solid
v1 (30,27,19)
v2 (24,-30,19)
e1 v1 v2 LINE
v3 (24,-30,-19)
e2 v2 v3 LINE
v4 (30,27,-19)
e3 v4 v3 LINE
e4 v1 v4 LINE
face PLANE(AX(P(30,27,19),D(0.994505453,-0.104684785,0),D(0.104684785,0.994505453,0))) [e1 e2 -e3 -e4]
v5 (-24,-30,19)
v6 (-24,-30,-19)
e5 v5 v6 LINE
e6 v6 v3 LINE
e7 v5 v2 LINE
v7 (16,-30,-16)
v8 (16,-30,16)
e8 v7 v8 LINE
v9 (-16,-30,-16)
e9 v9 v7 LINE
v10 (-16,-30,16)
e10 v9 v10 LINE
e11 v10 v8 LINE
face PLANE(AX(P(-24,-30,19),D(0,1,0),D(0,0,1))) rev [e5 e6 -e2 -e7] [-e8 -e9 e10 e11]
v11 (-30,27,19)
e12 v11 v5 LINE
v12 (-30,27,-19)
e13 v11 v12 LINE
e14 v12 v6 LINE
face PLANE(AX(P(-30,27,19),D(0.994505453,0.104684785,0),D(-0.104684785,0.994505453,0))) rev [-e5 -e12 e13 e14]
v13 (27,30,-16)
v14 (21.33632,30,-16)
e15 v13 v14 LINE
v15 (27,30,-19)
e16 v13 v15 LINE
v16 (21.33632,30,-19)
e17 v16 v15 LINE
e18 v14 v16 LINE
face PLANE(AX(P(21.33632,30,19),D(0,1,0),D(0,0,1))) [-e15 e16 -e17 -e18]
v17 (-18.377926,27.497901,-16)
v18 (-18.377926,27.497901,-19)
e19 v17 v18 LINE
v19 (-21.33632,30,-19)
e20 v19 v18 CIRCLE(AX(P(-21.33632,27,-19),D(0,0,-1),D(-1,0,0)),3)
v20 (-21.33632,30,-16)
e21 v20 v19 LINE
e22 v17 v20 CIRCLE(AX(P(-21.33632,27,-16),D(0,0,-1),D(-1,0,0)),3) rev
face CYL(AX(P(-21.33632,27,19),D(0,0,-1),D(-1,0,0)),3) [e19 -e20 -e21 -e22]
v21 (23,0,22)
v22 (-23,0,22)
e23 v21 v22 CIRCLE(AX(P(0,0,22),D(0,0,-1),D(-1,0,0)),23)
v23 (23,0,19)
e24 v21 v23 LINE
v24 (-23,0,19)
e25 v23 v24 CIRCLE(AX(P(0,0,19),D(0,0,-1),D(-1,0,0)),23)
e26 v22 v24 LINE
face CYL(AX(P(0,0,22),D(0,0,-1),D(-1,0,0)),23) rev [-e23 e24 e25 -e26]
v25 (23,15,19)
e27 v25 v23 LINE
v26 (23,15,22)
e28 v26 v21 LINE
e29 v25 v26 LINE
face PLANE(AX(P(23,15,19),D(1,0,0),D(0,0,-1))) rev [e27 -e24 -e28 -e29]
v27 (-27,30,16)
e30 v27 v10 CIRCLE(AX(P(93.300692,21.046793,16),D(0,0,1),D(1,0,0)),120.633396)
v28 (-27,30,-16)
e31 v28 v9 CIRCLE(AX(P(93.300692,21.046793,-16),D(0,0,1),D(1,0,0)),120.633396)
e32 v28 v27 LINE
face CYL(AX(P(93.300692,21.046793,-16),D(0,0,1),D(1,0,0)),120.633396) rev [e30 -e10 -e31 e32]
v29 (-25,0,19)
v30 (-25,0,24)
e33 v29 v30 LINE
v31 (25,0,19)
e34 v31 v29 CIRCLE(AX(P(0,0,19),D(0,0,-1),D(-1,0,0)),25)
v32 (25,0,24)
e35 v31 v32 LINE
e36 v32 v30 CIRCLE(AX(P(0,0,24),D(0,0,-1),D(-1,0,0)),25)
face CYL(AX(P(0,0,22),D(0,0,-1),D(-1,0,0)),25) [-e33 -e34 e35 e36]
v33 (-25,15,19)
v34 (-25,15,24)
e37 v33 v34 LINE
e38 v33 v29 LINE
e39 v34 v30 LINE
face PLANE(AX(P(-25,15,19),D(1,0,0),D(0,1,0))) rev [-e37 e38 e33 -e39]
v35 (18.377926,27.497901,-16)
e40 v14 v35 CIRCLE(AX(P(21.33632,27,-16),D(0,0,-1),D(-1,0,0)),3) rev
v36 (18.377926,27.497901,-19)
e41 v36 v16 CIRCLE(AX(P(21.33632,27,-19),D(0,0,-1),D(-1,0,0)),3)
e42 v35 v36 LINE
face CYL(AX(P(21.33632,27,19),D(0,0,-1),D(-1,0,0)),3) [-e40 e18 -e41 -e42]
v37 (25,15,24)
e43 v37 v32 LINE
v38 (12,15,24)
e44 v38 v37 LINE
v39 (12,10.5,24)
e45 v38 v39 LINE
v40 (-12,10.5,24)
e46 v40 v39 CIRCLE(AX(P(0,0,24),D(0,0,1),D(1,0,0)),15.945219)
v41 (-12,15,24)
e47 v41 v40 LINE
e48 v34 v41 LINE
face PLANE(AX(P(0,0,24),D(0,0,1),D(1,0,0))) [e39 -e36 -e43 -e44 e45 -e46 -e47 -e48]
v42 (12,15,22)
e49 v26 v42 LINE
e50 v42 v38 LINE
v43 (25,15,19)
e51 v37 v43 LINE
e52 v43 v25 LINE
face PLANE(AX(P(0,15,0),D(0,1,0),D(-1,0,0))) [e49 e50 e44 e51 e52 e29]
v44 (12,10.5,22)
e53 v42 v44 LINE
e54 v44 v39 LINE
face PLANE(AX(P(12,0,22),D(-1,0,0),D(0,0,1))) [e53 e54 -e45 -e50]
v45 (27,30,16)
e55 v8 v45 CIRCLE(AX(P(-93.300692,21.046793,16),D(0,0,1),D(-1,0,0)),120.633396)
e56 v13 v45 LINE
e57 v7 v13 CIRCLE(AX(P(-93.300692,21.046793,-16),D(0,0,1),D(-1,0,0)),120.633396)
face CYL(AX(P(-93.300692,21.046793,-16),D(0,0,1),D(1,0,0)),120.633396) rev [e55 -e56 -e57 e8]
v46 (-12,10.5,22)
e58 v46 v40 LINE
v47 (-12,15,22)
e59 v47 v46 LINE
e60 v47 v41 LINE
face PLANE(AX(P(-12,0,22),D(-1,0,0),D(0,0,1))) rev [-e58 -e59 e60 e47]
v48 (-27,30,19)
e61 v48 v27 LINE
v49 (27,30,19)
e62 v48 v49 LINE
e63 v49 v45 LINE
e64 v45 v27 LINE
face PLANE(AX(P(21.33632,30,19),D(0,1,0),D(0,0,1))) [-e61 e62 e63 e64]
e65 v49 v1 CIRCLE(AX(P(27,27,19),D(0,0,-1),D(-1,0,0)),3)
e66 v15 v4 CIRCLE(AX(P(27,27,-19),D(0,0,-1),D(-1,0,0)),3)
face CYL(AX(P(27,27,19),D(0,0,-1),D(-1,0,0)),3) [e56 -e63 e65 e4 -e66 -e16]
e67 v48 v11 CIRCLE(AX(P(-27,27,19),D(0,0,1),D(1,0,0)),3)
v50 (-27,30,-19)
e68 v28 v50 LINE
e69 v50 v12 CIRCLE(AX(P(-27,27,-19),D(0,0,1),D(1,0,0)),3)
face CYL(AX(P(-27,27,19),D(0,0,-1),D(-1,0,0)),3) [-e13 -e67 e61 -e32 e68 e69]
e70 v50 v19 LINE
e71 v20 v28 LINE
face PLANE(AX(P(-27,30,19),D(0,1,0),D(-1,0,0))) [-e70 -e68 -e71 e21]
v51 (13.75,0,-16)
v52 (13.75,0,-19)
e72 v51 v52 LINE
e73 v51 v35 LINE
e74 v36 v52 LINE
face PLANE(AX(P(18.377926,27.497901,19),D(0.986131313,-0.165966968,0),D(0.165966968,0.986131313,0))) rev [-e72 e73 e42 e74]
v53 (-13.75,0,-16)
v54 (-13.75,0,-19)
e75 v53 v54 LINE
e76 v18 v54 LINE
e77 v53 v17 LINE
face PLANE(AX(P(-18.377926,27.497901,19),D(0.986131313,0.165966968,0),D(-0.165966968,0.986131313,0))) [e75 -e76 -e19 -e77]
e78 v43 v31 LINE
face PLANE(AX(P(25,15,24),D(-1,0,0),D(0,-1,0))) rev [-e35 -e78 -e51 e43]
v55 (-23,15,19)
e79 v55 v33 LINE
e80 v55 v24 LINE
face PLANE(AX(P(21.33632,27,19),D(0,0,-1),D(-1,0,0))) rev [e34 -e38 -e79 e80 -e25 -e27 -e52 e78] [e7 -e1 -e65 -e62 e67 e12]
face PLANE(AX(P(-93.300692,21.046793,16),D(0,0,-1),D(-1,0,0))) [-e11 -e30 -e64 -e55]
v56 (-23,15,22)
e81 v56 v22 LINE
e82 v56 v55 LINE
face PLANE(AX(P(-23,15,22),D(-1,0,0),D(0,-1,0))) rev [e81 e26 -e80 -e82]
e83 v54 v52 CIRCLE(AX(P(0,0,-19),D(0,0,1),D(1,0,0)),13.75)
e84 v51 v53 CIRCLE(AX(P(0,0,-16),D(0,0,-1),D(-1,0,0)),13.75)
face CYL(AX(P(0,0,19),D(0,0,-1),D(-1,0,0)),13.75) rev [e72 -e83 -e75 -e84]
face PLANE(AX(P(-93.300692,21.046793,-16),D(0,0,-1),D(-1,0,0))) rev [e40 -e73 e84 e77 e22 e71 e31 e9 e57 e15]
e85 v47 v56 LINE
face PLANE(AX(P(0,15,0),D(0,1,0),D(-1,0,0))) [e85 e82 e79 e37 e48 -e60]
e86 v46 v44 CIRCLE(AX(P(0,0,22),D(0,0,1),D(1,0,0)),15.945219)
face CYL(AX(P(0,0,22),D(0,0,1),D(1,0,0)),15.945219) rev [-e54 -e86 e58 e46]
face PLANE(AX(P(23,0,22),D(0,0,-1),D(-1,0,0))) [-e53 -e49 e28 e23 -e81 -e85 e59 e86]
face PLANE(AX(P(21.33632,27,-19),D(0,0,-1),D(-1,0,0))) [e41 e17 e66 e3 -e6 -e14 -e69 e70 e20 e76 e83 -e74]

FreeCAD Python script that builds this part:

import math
import FreeCAD as App
import Part
import Sketcher


def add_polygon(sketch, points):
    """Adds a closed chain of lines whose ends are joined by coincident constraints."""
    first, n = sketch.GeometryCount, len(points)
    for a, b in zip(points, points[1:] + points[:1]):
        sketch.addGeometry(Part.LineSegment(App.Vector(*a, 0), App.Vector(*b, 0)), False)
    for i in range(n):
        sketch.addConstraint(Sketcher.Constraint("Coincident", first + i, 2, first + (i + 1) % n, 1))

doc = App.newDocument("Part")
body = doc.addObject("PartDesign::Body", "Body")

# Sketch on XY plane
sketch1 = doc.addObject("Sketcher::SketchObject", "Sketch")
body.addObject(sketch1)
sketch1.AttachmentSupport = (doc.XY_Plane, [""])
sketch1.MapMode = "FlatFace"
sketch1.addGeometry(Part.LineSegment(App.Vector(-21.3, 30, 0), App.Vector(-27, 30, 0)), False)
sketch1.addGeometry(Part.ArcOfCircle(Part.Circle(App.Vector(-27, 27, 0), App.Vector(0, 0, 1), 3), math.radians(90), math.radians(180)), False)
sketch1.addGeometry(Part.LineSegment(App.Vector(-30, 27, 0), App.Vector(-24, -30, 0)), False)
sketch1.addGeometry(Part.LineSegment(App.Vector(-24, -30, 0), App.Vector(24, -30, 0)), False)
sketch1.addGeometry(Part.LineSegment(App.Vector(24, -30, 0), App.Vector(30, 27, 0)), False)
sketch1.addGeometry(Part.ArcOfCircle(Part.Circle(App.Vector(27, 27, 0), App.Vector(0, 0, 1), 3), math.radians(0), math.radians(90)), False)
sketch1.addGeometry(Part.LineSegment(App.Vector(27, 30, 0), App.Vector(21.3, 30, 0)), False)
sketch1.addGeometry(Part.ArcOfCircle(Part.Circle(App.Vector(21.3, 27, 0), App.Vector(0, 0, 1), 3), math.radians(90), math.radians(170)), False)
sketch1.addGeometry(Part.LineSegment(App.Vector(18.4, 27.5, 0), App.Vector(13.8, 0, 0)), False)
sketch1.addGeometry(Part.ArcOfCircle(Part.Circle(App.Vector(0, 0, 0), App.Vector(0, 0, 1), 13.8), math.radians(180), math.radians(360)), False)
sketch1.addGeometry(Part.LineSegment(App.Vector(-13.8, 0, 0), App.Vector(-18.4, 27.5, 0)), False)
sketch1.addGeometry(Part.ArcOfCircle(Part.Circle(App.Vector(-21.3, 27, 0), App.Vector(0, 0, 1), 3), math.radians(10), math.radians(90)), False)
sketch1.addConstraint(Sketcher.Constraint("Tangent", 0, 2, 1, 1))
sketch1.addConstraint(Sketcher.Constraint("Coincident", 1, 2, 2, 1))
sketch1.addConstraint(Sketcher.Constraint("Coincident", 2, 2, 3, 1))
sketch1.addConstraint(Sketcher.Constraint("Coincident", 3, 2, 4, 1))
sketch1.addConstraint(Sketcher.Constraint("Coincident", 4, 2, 5, 1))
sketch1.addConstraint(Sketcher.Constraint("Tangent", 5, 2, 6, 1))
sketch1.addConstraint(Sketcher.Constraint("Tangent", 6, 2, 7, 1))
sketch1.addConstraint(Sketcher.Constraint("Tangent", 7, 2, 8, 1))
sketch1.addConstraint(Sketcher.Constraint("Coincident", 8, 2, 9, 2))
sketch1.addConstraint(Sketcher.Constraint("Coincident", 9, 1, 10, 1))
sketch1.addConstraint(Sketcher.Constraint("Tangent", 10, 2, 11, 1))
sketch1.addConstraint(Sketcher.Constraint("Tangent", 11, 2, 0, 1))
sketch1.addConstraint(Sketcher.Constraint("Horizontal", 0))
sketch1.addConstraint(Sketcher.Constraint("Horizontal", 3))
sketch1.addConstraint(Sketcher.Constraint("Horizontal", 6))
sketch1.addConstraint(Sketcher.Constraint("Coincident", 9, 3, -1, 1))
sketch1.addConstraint(Sketcher.Constraint("Equal", 1, 5))
sketch1.addConstraint(Sketcher.Constraint("Equal", 5, 7))
sketch1.addConstraint(Sketcher.Constraint("Equal", 7, 11))
sketch1.addConstraint(Sketcher.Constraint("Symmetric", 1, 3, 5, 3, -2))
sketch1.addConstraint(Sketcher.Constraint("Symmetric", 7, 2, 10, 2, -2))
sketch1.addConstraint(Sketcher.Constraint("PointOnObject", 8, 2, -1))
sketch1.addConstraint(Sketcher.Constraint("Horizontal", 11, 3, 1, 2))
sketch1.addConstraint(Sketcher.Constraint("Horizontal", 1, 2, 4, 2))
sketch1.addConstraint(Sketcher.Constraint("Equal", 2, 4))
sketch1.addConstraint(Sketcher.Constraint("Radius", 1, 3.0))
sketch1.addConstraint(Sketcher.Constraint("DistanceX", 3, 1, 3, 2, 48.0))
sketch1.addConstraint(Sketcher.Constraint("Radius", 9, 13.75))
sketch1.addConstraint(Sketcher.Constraint("DistanceX", 1, 3, -1, 1, 27.0))
sketch1.addConstraint(Sketcher.Constraint("DistanceY", -1, 1, 1, 3, 27.0))
sketch1.addConstraint(Sketcher.Constraint("DistanceY", 2, 2, -1, 1, 30.0))
sketch1.addConstraint(Sketcher.Constraint("DistanceX", 0, 2, 0, 1, 5.66368))
pad1 = doc.addObject("PartDesign::Pad", "Pad")
body.addObject(pad1)
pad1.Profile = sketch1
pad1.Length = 38
pad1.Midplane = True

# Sketch on XY plane
sketch2 = doc.addObject("Sketcher::SketchObject", "Sketch001")
body.addObject(sketch2)
sketch2.AttachmentSupport = (doc.XY_Plane, [""])
sketch2.MapMode = "FlatFace"
sketch2.addGeometry(Part.LineSegment(App.Vector(-16, -30, 0), App.Vector(16, -30, 0)), False)
sketch2.addGeometry(Part.ArcOfCircle(Part.Circle(App.Vector(-93, 21, 0), App.Vector(0, 0, 1), 121), math.radians(-25), math.radians(4)), False)
sketch2.addGeometry(Part.LineSegment(App.Vector(27, 30, 0), App.Vector(18, 30, 0)), False)
sketch2.addGeometry(Part.LineSegment(App.Vector(18, 30, 0), App.Vector(14, 0, 0)), False)
sketch2.addGeometry(Part.ArcOfCircle(Part.Circle(App.Vector(0, 0, 0), App.Vector(0, 0, 1), 14), math.radians(180), math.radians(360)), False)
sketch2.addGeometry(Part.LineSegment(App.Vector(-14, 0, 0), App.Vector(-18, 30, 0)), False)
sketch2.addGeometry(Part.LineSegment(App.Vector(-18, 30, 0), App.Vector(-27, 30, 0)), False)
sketch2.addGeometry(Part.ArcOfCircle(Part.Circle(App.Vector(93, 21, 0), App.Vector(0, 0, 1), 121), math.radians(176), math.radians(205)), False)
sketch2.addConstraint(Sketcher.Constraint("Coincident", 0, 2, 1, 1))
sketch2.addConstraint(Sketcher.Constraint("Coincident", 1, 2, 2, 1))
sketch2.addConstraint(Sketcher.Constraint("Coincident", 2, 2, 3, 1))
sketch2.addConstraint(Sketcher.Constraint("Coincident", 3, 2, 4, 2))
sketch2.addConstraint(Sketcher.Constraint("Coincident", 4, 1, 5, 1))
sketch2.addConstraint(Sketcher.Constraint("Coincident", 5, 2, 6, 1))
sketch2.addConstraint(Sketcher.Constraint("Coincident", 6, 2, 7, 1))
sketch2.addConstraint(Sketcher.Constraint("Coincident", 7, 2, 0, 1))
sketch2.addConstraint(Sketcher.Constraint("Horizontal", 0))
sketch2.addConstraint(Sketcher.Constraint("Horizontal", 2))
sketch2.addConstraint(Sketcher.Constraint("Horizontal", 6))
sketch2.addConstraint(Sketcher.Constraint("Coincident", 4, 3, -1, 1))
sketch2.addConstraint(Sketcher.Constraint("Equal", 1, 7))
sketch2.addConstraint(Sketcher.Constraint("Symmetric", 1, 3, 7, 3, -2))
sketch2.addConstraint(Sketcher.Constraint("Symmetric", 2, 2, 5, 2, -2))
sketch2.addConstraint(Sketcher.Constraint("PointOnObject", 3, 2, -1))
sketch2.addConstraint(Sketcher.Constraint("PointOnObject", 4, 1, -1))
sketch2.addConstraint(Sketcher.Constraint("DistanceX", 0, 1, 0, 2, 32.0))
sketch2.addConstraint(Sketcher.Constraint("DistanceX", 2, 2, 2, 1, 9.0))
sketch2.addConstraint(Sketcher.Constraint("Radius", 4, 13.75))
sketch2.addConstraint(Sketcher.Constraint("DistanceY", 0, 2, -1, 1, 30.0))
sketch2.addConstraint(Sketcher.Constraint("DistanceX", -1, 1, 1, 2, 27.0))
sketch2.addConstraint(Sketcher.Constraint("DistanceY", -1, 1, 1, 2, 30.0))
sketch2.addConstraint(Sketcher.Constraint("Radius", 1, 120.633396))
pocket1 = doc.addObject("PartDesign::Pocket", "Pocket")
body.addObject(pocket1)
pocket1.Profile = sketch2
pocket1.Length = 32
pocket1.Midplane = True

# Sketch on XY plane
sketch3 = doc.addObject("Sketcher::SketchObject", "Sketch002")
body.addObject(sketch3)
sketch3.AttachmentSupport = (doc.XY_Plane, [""])
sketch3.MapMode = "FlatFace"
sketch3.AttachmentOffset = App.Placement(App.Vector(0, 0, 19), App.Rotation())
add_polygon(sketch3, [(21, 30), (-21, 30), (-21, -14), (0, -14), (21, -14)])  # lines 0-4
sketch3.addConstraint(Sketcher.Constraint("Horizontal", 0))
sketch3.addConstraint(Sketcher.Constraint("Vertical", 1))
sketch3.addConstraint(Sketcher.Constraint("Vertical", 4))
sketch3.addConstraint(Sketcher.Constraint("Symmetric", 1, 2, 3, 2, -2))
sketch3.addConstraint(Sketcher.Constraint("PointOnObject", 2, 2, -2))
sketch3.addConstraint(Sketcher.Constraint("DistanceY", 1, 2, 1, 1, 44.0))
sketch3.addConstraint(Sketcher.Constraint("DistanceY", -1, 1, 0, 2, 30.0))
sketch3.addConstraint(Sketcher.Constraint("DistanceY", 2, 2, -1, 1, 13.75))
sketch3.addConstraint(Sketcher.Constraint("DistanceX", 0, 2, 0, 1, 42.672641))
pad2 = doc.addObject("PartDesign::Pad", "Pad001")
body.addObject(pad2)
pad2.Profile = sketch3
pad2.Length = 3
pad2.Reversed = True

# Sketch on XZ plane
sketch4 = doc.addObject("Sketcher::SketchObject", "Sketch003")
body.addObject(sketch4)
sketch4.AttachmentSupport = (doc.XZ_Plane, [""])
sketch4.MapMode = "FlatFace"
add_polygon(sketch4, [(0, 24), (0, 22), (-23, 22), (-23, 19), (-25, 19), (-25, 24)])  # lines 0-5
sketch4.addConstraint(Sketcher.Constraint("Vertical", 0))
sketch4.addConstraint(Sketcher.Constraint("Horizontal", 1))
sketch4.addConstraint(Sketcher.Constraint("Vertical", 2))
sketch4.addConstraint(Sketcher.Constraint("Horizontal", 3))
sketch4.addConstraint(Sketcher.Constraint("Vertical", 4))
sketch4.addConstraint(Sketcher.Constraint("Horizontal", 5))
sketch4.addConstraint(Sketcher.Constraint("PointOnObject", 0, 2, -2))
sketch4.addConstraint(Sketcher.Constraint("Equal", 3, 0))
sketch4.addConstraint(Sketcher.Constraint("DistanceX", 1, 2, 1, 1, 23.0))
sketch4.addConstraint(Sketcher.Constraint("DistanceX", 3, 2, 3, 1, 2.0))
sketch4.addConstraint(Sketcher.Constraint("DistanceY", 2, 2, 2, 1, 3.0))
sketch4.addConstraint(Sketcher.Constraint("DistanceY", -1, 1, 0, 2, 22.0))
revolution = doc.addObject("PartDesign::Revolution", "Revolution")
body.addObject(revolution)
revolution.Profile = sketch4
revolution.ReferenceAxis = (sketch4, ["V_Axis"])
revolution.Angle = 180

# Sketch on XZ plane
sketch5 = doc.addObject("Sketcher::SketchObject", "Sketch004")
body.addObject(sketch5)
sketch5.AttachmentSupport = (doc.XZ_Plane, [""])
sketch5.MapMode = "FlatFace"
add_polygon(sketch5, [(-25, 24), (25, 24), (25, 19), (23, 19), (23, 22), (-23, 22), (-23, 19), (-25, 19)])  # lines 0-7
sketch5.addConstraint(Sketcher.Constraint("Horizontal", 0))
sketch5.addConstraint(Sketcher.Constraint("Vertical", 1))
sketch5.addConstraint(Sketcher.Constraint("Horizontal", 2))
sketch5.addConstraint(Sketcher.Constraint("Vertical", 3))
sketch5.addConstraint(Sketcher.Constraint("Horizontal", 4))
sketch5.addConstraint(Sketcher.Constraint("Vertical", 5))
sketch5.addConstraint(Sketcher.Constraint("Horizontal", 6))
sketch5.addConstraint(Sketcher.Constraint("Vertical", 7))
sketch5.addConstraint(Sketcher.Constraint("Symmetric", 2, 2, 5, 2, -2))
sketch5.addConstraint(Sketcher.Constraint("Equal", 2, 6))
sketch5.addConstraint(Sketcher.Constraint("DistanceX", 0, 1, 0, 2, 50.0))
sketch5.addConstraint(Sketcher.Constraint("DistanceX", 2, 2, 2, 1, 2.0))
sketch5.addConstraint(Sketcher.Constraint("DistanceY", 1, 2, 1, 1, 5.0))
sketch5.addConstraint(Sketcher.Constraint("DistanceY", 3, 1, 3, 2, 3.0))
sketch5.addConstraint(Sketcher.Constraint("DistanceY", -1, 1, 0, 2, 24.0))
pad3 = doc.addObject("PartDesign::Pad", "Pad002")
body.addObject(pad3)
pad3.Profile = sketch5
pad3.Length = 15
pad3.Reversed = True

# Sketch on XY plane
sketch6 = doc.addObject("Sketcher::SketchObject", "Sketch005")
body.addObject(sketch6)
sketch6.AttachmentSupport = (doc.XY_Plane, [""])
sketch6.MapMode = "FlatFace"
sketch6.AttachmentOffset = App.Placement(App.Vector(0, 0, 22), App.Rotation())
sketch6.addGeometry(Part.LineSegment(App.Vector(-12, 15, 0), App.Vector(-12, 10.5, 0)), False)
sketch6.addGeometry(Part.ArcOfCircle(Part.Circle(App.Vector(0, 0, 0), App.Vector(0, 0, 1), 15.9), math.radians(139), math.radians(401)), False)
sketch6.addGeometry(Part.LineSegment(App.Vector(12, 10.5, 0), App.Vector(12, 15, 0)), False)
sketch6.addGeometry(Part.LineSegment(App.Vector(12, 15, 0), App.Vector(-12, 15, 0)), False)
sketch6.addConstraint(Sketcher.Constraint("Coincident", 0, 2, 1, 1))
sketch6.addConstraint(Sketcher.Constraint("Coincident", 1, 2, 2, 1))
sketch6.addConstraint(Sketcher.Constraint("Coincident", 2, 2, 3, 1))
sketch6.addConstraint(Sketcher.Constraint("Coincident", 3, 2, 0, 1))
sketch6.addConstraint(Sketcher.Constraint("Vertical", 0))
sketch6.addConstraint(Sketcher.Constraint("Vertical", 2))
sketch6.addConstraint(Sketcher.Constraint("Horizontal", 3))
sketch6.addConstraint(Sketcher.Constraint("Coincident", 1, 3, -1, 1))
sketch6.addConstraint(Sketcher.Constraint("Horizontal", 0, 2, 1, 2))
sketch6.addConstraint(Sketcher.Constraint("DistanceX", 3, 2, 3, 1, 24.0))
sketch6.addConstraint(Sketcher.Constraint("DistanceY", 0, 2, 0, 1, 4.5))
sketch6.addConstraint(Sketcher.Constraint("DistanceY", -1, 1, 2, 2, 15.0))
pocket2 = doc.addObject("PartDesign::Pocket", "Pocket001")
body.addObject(pocket2)
pocket2.Profile = sketch6
pocket2.Length = 2
pocket2.Reversed = True

doc.recompute()
